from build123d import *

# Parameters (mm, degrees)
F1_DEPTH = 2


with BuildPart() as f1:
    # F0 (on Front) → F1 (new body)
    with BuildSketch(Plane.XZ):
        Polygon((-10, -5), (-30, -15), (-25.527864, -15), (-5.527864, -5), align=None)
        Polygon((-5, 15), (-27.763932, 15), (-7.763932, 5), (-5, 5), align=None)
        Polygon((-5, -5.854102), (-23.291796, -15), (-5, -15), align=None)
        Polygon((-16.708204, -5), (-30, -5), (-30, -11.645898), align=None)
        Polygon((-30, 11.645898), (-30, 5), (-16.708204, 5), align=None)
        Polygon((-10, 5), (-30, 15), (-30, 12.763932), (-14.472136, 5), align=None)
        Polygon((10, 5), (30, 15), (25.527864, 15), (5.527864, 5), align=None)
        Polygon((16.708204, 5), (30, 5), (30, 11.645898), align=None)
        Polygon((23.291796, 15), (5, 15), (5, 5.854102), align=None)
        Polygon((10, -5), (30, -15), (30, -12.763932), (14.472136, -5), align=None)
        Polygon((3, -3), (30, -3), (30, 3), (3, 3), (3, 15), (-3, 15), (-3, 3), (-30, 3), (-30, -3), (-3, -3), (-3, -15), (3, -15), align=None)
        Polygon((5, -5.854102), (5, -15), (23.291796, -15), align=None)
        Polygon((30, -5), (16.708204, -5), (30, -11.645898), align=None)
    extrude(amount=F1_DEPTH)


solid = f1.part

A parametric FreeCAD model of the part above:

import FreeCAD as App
import Part
import Sketcher

V = App.Vector


def add_polygon(sketch, points):
    """Adds a closed chain of lines whose ends are joined by coincident constraints."""
    first, n = sketch.GeometryCount, len(points)
    for a, b in zip(points, points[1:] + points[:1]):
        sketch.addGeometry(Part.LineSegment(App.Vector(*a, 0), App.Vector(*b, 0)), False)
    for i in range(n):
        sketch.addConstraint(Sketcher.Constraint("Coincident", first + i, 2, first + (i + 1) % n, 1))

doc = App.newDocument("Part")
body = doc.addObject("PartDesign::Body", "Body")
body.AllowCompound = True

sketch1 = body.newObject("Sketcher::SketchObject", "Sketch")
sketch1.AttachmentSupport = (doc.getObject("XZ_Plane"), [""])
sketch1.MapMode = "FlatFace"
add_polygon(sketch1, [(-10, -5), (-30, -15), (-25.5, -15), (-5.5, -5)])
add_polygon(sketch1, [(-5, 15), (-27.8, 15), (-7.8, 5), (-5, 5)])
add_polygon(sketch1, [(-5, -5.9), (-23.3, -15), (-5, -15)])
add_polygon(sketch1, [(-16.7, -5), (-30, -5), (-30, -11.6)])
add_polygon(sketch1, [(-30, 11.6), (-30, 5), (-16.7, 5)])
add_polygon(sketch1, [(-10, 5), (-30, 15), (-30, 12.8), (-14.5, 5)])
add_polygon(sketch1, [(10, 5), (30, 15), (25.5, 15), (5.5, 5)])
add_polygon(sketch1, [(16.7, 5), (30, 5), (30, 11.6)])
add_polygon(sketch1, [(23.3, 15), (5, 15), (5, 5.9)])
add_polygon(sketch1, [(10, -5), (30, -15), (30, -12.8), (14.5, -5)])
add_polygon(sketch1, [(3, -3), (30, -3), (30, 3), (3, 3), (3, 15), (-3, 15), (-3, 3), (-30, 3), (-30, -3), (-3, -3), (-3, -15), (3, -15)])
add_polygon(sketch1, [(5, -5.9), (5, -15), (23.3, -15)])
add_polygon(sketch1, [(30, -5), (16.7, -5), (30, -11.6)])
sketch1.addConstraint([
    Sketcher.Constraint("Horizontal", 1),
    Sketcher.Constraint("Horizontal", 3),
    Sketcher.Constraint("Horizontal", 4),
    Sketcher.Constraint("Horizontal", 6),
    Sketcher.Constraint("Vertical", 7),
    Sketcher.Constraint("Horizontal", 9),
    Sketcher.Constraint("Vertical", 10),
    Sketcher.Constraint("Horizontal", 11),
    Sketcher.Constraint("Vertical", 12),
    Sketcher.Constraint("Vertical", 14),
    Sketcher.Constraint("Horizontal", 15),
    Sketcher.Constraint("Vertical", 18),
    Sketcher.Constraint("Horizontal", 20),
    Sketcher.Constraint("Horizontal", 22),
    Sketcher.Constraint("Horizontal", 24),
    Sketcher.Constraint("Horizontal", 25),
    Sketcher.Constraint("Vertical", 26),
    Sketcher.Constraint("Horizontal", 28),
    Sketcher.Constraint("Vertical", 29),
    Sketcher.Constraint("Vertical", 32),
    Sketcher.Constraint("Horizontal", 34),
    Sketcher.Constraint("Horizontal", 35),
    Sketcher.Constraint("Vertical", 36),
    Sketcher.Constraint("Horizontal", 37),
    Sketcher.Constraint("Vertical", 38),
    Sketcher.Constraint("Horizontal", 39),
    Sketcher.Constraint("Vertical", 40),
    Sketcher.Constraint("Horizontal", 41),
    Sketcher.Constraint("Vertical", 42),
    Sketcher.Constraint("Horizontal", 43),
    Sketcher.Constraint("Vertical", 44),
    Sketcher.Constraint("Horizontal", 45),
    Sketcher.Constraint("Vertical", 46),
    Sketcher.Constraint("Vertical", 47),
    Sketcher.Constraint("Horizontal", 48),
    Sketcher.Constraint("Horizontal", 50),
    Sketcher.Constraint("Vertical", 52),
    Sketcher.Constraint("Symmetric", 0, 2, 21, 2, -1, 1),
    Sketcher.Constraint("Symmetric", 2, 2, 23, 2, -1, 1),
    Sketcher.Constraint("Symmetric", 11, 2, 25, 2, -1, 1),
    Sketcher.Constraint("Symmetric", 9, 2, 28, 2, -1, 1),
    Sketcher.Constraint("Symmetric", 17, 2, 31, 2, -1, 1),
    Sketcher.Constraint("Symmetric", 19, 2, 33, 2, -1, 1),
    Sketcher.Constraint("Symmetric", 35, 2, 41, 2, -1, 1),
    Sketcher.Constraint("Symmetric", 37, 2, 43, 2, -1, 1),
    Sketcher.Constraint("Symmetric", 39, 2, 45, 2, -1, 1),
    Sketcher.Constraint("Symmetric", 7, 2, 47, 2, -1, 1),
    Sketcher.Constraint("Symmetric", 15, 2, 50, 2, -1, 1),
    Sketcher.Constraint("Symmetric", 16, 2, 51, 2, -1, 1),
    Sketcher.Constraint("Symmetric", 17, 2, 21, 2, -2),
    Sketcher.Constraint("Symmetric", 20, 2, 24, 2, -2),
    Sketcher.Constraint("Symmetric", 14, 2, 25, 2, -2),
    Sketcher.Constraint("Symmetric", 7, 2, 28, 2, -2),
    Sketcher.Constraint("Symmetric", 37, 2, 40, 2, -2),
    Sketcher.Constraint("Parallel", 0, 2),
    Sketcher.Constraint("Parallel", 2, 8),
    Sketcher.Constraint("Parallel", 8, 13),
    Sketcher.Constraint("Parallel", 5, 16),
    Sketcher.Constraint("Parallel", 16, 17),
    Sketcher.Constraint("Parallel", 17, 19),
    Sketcher.Constraint("Parallel", 13, 21),
    Sketcher.Constraint("Parallel", 21, 23),
    Sketcher.Constraint("Parallel", 23, 27),
    Sketcher.Constraint("Parallel", 27, 30),
    Sketcher.Constraint("Parallel", 19, 31),
    Sketcher.Constraint("Parallel", 31, 33),
    Sketcher.Constraint("Parallel", 33, 49),
    Sketcher.Constraint("Horizontal", 1, 2, 8, 2),
    Sketcher.Constraint("Horizontal", 3, 2, 11, 2),
    Sketcher.Constraint("Horizontal", 6, 2, 14, 2),
    Sketcher.Constraint("Horizontal", 16, 2, 26, 2),
    Sketcher.Constraint("Horizontal", 30, 2, 38, 2),
    Sketcher.Constraint("Horizontal", 10, 2, 49, 2),
    Sketcher.Constraint("Horizontal", 12, 2, 51, 2),
    Sketcher.Constraint("Vertical", 0, 2, 11, 2),
    Sketcher.Constraint("Vertical", 32, 2, 35, 2),
    Sketcher.Constraint("Vertical", 30, 2, 48, 2),
    Sketcher.Constraint("Equal", 3, 20),
    Sketcher.Constraint("Equal", 45, 36),
    Sketcher.Constraint("DistanceX", 35, 1, 35, 2, 27.0),
    Sketcher.Constraint("DistanceX", 39, 2, 39, 1, 6.0),
    Sketcher.Constraint("DistanceY", 7, 1, 7, 2, 10.0),
    Sketcher.Constraint("DistanceY", 38, 1, 38, 2, 12.0),
    Sketcher.Constraint("DistanceX", 3, 2, -1, 1, 10.0),
    Sketcher.Constraint("DistanceX", 6, 2, -1, 1, 5.0),
    Sketcher.Constraint("DistanceY", 12, 2, 12, 1, 6.645898),
    Sketcher.Constraint("DistanceX", 6, 1, 6, 2, 2.763932),
    Sketcher.Constraint("Distance", 8, 20.45085),
    Sketcher.Constraint("Distance", 19, 17.36068),
])
pad1 = body.newObject("PartDesign::Pad", "Pad")
pad1.Profile = sketch1
pad1.Length = 2

doc.recompute()
